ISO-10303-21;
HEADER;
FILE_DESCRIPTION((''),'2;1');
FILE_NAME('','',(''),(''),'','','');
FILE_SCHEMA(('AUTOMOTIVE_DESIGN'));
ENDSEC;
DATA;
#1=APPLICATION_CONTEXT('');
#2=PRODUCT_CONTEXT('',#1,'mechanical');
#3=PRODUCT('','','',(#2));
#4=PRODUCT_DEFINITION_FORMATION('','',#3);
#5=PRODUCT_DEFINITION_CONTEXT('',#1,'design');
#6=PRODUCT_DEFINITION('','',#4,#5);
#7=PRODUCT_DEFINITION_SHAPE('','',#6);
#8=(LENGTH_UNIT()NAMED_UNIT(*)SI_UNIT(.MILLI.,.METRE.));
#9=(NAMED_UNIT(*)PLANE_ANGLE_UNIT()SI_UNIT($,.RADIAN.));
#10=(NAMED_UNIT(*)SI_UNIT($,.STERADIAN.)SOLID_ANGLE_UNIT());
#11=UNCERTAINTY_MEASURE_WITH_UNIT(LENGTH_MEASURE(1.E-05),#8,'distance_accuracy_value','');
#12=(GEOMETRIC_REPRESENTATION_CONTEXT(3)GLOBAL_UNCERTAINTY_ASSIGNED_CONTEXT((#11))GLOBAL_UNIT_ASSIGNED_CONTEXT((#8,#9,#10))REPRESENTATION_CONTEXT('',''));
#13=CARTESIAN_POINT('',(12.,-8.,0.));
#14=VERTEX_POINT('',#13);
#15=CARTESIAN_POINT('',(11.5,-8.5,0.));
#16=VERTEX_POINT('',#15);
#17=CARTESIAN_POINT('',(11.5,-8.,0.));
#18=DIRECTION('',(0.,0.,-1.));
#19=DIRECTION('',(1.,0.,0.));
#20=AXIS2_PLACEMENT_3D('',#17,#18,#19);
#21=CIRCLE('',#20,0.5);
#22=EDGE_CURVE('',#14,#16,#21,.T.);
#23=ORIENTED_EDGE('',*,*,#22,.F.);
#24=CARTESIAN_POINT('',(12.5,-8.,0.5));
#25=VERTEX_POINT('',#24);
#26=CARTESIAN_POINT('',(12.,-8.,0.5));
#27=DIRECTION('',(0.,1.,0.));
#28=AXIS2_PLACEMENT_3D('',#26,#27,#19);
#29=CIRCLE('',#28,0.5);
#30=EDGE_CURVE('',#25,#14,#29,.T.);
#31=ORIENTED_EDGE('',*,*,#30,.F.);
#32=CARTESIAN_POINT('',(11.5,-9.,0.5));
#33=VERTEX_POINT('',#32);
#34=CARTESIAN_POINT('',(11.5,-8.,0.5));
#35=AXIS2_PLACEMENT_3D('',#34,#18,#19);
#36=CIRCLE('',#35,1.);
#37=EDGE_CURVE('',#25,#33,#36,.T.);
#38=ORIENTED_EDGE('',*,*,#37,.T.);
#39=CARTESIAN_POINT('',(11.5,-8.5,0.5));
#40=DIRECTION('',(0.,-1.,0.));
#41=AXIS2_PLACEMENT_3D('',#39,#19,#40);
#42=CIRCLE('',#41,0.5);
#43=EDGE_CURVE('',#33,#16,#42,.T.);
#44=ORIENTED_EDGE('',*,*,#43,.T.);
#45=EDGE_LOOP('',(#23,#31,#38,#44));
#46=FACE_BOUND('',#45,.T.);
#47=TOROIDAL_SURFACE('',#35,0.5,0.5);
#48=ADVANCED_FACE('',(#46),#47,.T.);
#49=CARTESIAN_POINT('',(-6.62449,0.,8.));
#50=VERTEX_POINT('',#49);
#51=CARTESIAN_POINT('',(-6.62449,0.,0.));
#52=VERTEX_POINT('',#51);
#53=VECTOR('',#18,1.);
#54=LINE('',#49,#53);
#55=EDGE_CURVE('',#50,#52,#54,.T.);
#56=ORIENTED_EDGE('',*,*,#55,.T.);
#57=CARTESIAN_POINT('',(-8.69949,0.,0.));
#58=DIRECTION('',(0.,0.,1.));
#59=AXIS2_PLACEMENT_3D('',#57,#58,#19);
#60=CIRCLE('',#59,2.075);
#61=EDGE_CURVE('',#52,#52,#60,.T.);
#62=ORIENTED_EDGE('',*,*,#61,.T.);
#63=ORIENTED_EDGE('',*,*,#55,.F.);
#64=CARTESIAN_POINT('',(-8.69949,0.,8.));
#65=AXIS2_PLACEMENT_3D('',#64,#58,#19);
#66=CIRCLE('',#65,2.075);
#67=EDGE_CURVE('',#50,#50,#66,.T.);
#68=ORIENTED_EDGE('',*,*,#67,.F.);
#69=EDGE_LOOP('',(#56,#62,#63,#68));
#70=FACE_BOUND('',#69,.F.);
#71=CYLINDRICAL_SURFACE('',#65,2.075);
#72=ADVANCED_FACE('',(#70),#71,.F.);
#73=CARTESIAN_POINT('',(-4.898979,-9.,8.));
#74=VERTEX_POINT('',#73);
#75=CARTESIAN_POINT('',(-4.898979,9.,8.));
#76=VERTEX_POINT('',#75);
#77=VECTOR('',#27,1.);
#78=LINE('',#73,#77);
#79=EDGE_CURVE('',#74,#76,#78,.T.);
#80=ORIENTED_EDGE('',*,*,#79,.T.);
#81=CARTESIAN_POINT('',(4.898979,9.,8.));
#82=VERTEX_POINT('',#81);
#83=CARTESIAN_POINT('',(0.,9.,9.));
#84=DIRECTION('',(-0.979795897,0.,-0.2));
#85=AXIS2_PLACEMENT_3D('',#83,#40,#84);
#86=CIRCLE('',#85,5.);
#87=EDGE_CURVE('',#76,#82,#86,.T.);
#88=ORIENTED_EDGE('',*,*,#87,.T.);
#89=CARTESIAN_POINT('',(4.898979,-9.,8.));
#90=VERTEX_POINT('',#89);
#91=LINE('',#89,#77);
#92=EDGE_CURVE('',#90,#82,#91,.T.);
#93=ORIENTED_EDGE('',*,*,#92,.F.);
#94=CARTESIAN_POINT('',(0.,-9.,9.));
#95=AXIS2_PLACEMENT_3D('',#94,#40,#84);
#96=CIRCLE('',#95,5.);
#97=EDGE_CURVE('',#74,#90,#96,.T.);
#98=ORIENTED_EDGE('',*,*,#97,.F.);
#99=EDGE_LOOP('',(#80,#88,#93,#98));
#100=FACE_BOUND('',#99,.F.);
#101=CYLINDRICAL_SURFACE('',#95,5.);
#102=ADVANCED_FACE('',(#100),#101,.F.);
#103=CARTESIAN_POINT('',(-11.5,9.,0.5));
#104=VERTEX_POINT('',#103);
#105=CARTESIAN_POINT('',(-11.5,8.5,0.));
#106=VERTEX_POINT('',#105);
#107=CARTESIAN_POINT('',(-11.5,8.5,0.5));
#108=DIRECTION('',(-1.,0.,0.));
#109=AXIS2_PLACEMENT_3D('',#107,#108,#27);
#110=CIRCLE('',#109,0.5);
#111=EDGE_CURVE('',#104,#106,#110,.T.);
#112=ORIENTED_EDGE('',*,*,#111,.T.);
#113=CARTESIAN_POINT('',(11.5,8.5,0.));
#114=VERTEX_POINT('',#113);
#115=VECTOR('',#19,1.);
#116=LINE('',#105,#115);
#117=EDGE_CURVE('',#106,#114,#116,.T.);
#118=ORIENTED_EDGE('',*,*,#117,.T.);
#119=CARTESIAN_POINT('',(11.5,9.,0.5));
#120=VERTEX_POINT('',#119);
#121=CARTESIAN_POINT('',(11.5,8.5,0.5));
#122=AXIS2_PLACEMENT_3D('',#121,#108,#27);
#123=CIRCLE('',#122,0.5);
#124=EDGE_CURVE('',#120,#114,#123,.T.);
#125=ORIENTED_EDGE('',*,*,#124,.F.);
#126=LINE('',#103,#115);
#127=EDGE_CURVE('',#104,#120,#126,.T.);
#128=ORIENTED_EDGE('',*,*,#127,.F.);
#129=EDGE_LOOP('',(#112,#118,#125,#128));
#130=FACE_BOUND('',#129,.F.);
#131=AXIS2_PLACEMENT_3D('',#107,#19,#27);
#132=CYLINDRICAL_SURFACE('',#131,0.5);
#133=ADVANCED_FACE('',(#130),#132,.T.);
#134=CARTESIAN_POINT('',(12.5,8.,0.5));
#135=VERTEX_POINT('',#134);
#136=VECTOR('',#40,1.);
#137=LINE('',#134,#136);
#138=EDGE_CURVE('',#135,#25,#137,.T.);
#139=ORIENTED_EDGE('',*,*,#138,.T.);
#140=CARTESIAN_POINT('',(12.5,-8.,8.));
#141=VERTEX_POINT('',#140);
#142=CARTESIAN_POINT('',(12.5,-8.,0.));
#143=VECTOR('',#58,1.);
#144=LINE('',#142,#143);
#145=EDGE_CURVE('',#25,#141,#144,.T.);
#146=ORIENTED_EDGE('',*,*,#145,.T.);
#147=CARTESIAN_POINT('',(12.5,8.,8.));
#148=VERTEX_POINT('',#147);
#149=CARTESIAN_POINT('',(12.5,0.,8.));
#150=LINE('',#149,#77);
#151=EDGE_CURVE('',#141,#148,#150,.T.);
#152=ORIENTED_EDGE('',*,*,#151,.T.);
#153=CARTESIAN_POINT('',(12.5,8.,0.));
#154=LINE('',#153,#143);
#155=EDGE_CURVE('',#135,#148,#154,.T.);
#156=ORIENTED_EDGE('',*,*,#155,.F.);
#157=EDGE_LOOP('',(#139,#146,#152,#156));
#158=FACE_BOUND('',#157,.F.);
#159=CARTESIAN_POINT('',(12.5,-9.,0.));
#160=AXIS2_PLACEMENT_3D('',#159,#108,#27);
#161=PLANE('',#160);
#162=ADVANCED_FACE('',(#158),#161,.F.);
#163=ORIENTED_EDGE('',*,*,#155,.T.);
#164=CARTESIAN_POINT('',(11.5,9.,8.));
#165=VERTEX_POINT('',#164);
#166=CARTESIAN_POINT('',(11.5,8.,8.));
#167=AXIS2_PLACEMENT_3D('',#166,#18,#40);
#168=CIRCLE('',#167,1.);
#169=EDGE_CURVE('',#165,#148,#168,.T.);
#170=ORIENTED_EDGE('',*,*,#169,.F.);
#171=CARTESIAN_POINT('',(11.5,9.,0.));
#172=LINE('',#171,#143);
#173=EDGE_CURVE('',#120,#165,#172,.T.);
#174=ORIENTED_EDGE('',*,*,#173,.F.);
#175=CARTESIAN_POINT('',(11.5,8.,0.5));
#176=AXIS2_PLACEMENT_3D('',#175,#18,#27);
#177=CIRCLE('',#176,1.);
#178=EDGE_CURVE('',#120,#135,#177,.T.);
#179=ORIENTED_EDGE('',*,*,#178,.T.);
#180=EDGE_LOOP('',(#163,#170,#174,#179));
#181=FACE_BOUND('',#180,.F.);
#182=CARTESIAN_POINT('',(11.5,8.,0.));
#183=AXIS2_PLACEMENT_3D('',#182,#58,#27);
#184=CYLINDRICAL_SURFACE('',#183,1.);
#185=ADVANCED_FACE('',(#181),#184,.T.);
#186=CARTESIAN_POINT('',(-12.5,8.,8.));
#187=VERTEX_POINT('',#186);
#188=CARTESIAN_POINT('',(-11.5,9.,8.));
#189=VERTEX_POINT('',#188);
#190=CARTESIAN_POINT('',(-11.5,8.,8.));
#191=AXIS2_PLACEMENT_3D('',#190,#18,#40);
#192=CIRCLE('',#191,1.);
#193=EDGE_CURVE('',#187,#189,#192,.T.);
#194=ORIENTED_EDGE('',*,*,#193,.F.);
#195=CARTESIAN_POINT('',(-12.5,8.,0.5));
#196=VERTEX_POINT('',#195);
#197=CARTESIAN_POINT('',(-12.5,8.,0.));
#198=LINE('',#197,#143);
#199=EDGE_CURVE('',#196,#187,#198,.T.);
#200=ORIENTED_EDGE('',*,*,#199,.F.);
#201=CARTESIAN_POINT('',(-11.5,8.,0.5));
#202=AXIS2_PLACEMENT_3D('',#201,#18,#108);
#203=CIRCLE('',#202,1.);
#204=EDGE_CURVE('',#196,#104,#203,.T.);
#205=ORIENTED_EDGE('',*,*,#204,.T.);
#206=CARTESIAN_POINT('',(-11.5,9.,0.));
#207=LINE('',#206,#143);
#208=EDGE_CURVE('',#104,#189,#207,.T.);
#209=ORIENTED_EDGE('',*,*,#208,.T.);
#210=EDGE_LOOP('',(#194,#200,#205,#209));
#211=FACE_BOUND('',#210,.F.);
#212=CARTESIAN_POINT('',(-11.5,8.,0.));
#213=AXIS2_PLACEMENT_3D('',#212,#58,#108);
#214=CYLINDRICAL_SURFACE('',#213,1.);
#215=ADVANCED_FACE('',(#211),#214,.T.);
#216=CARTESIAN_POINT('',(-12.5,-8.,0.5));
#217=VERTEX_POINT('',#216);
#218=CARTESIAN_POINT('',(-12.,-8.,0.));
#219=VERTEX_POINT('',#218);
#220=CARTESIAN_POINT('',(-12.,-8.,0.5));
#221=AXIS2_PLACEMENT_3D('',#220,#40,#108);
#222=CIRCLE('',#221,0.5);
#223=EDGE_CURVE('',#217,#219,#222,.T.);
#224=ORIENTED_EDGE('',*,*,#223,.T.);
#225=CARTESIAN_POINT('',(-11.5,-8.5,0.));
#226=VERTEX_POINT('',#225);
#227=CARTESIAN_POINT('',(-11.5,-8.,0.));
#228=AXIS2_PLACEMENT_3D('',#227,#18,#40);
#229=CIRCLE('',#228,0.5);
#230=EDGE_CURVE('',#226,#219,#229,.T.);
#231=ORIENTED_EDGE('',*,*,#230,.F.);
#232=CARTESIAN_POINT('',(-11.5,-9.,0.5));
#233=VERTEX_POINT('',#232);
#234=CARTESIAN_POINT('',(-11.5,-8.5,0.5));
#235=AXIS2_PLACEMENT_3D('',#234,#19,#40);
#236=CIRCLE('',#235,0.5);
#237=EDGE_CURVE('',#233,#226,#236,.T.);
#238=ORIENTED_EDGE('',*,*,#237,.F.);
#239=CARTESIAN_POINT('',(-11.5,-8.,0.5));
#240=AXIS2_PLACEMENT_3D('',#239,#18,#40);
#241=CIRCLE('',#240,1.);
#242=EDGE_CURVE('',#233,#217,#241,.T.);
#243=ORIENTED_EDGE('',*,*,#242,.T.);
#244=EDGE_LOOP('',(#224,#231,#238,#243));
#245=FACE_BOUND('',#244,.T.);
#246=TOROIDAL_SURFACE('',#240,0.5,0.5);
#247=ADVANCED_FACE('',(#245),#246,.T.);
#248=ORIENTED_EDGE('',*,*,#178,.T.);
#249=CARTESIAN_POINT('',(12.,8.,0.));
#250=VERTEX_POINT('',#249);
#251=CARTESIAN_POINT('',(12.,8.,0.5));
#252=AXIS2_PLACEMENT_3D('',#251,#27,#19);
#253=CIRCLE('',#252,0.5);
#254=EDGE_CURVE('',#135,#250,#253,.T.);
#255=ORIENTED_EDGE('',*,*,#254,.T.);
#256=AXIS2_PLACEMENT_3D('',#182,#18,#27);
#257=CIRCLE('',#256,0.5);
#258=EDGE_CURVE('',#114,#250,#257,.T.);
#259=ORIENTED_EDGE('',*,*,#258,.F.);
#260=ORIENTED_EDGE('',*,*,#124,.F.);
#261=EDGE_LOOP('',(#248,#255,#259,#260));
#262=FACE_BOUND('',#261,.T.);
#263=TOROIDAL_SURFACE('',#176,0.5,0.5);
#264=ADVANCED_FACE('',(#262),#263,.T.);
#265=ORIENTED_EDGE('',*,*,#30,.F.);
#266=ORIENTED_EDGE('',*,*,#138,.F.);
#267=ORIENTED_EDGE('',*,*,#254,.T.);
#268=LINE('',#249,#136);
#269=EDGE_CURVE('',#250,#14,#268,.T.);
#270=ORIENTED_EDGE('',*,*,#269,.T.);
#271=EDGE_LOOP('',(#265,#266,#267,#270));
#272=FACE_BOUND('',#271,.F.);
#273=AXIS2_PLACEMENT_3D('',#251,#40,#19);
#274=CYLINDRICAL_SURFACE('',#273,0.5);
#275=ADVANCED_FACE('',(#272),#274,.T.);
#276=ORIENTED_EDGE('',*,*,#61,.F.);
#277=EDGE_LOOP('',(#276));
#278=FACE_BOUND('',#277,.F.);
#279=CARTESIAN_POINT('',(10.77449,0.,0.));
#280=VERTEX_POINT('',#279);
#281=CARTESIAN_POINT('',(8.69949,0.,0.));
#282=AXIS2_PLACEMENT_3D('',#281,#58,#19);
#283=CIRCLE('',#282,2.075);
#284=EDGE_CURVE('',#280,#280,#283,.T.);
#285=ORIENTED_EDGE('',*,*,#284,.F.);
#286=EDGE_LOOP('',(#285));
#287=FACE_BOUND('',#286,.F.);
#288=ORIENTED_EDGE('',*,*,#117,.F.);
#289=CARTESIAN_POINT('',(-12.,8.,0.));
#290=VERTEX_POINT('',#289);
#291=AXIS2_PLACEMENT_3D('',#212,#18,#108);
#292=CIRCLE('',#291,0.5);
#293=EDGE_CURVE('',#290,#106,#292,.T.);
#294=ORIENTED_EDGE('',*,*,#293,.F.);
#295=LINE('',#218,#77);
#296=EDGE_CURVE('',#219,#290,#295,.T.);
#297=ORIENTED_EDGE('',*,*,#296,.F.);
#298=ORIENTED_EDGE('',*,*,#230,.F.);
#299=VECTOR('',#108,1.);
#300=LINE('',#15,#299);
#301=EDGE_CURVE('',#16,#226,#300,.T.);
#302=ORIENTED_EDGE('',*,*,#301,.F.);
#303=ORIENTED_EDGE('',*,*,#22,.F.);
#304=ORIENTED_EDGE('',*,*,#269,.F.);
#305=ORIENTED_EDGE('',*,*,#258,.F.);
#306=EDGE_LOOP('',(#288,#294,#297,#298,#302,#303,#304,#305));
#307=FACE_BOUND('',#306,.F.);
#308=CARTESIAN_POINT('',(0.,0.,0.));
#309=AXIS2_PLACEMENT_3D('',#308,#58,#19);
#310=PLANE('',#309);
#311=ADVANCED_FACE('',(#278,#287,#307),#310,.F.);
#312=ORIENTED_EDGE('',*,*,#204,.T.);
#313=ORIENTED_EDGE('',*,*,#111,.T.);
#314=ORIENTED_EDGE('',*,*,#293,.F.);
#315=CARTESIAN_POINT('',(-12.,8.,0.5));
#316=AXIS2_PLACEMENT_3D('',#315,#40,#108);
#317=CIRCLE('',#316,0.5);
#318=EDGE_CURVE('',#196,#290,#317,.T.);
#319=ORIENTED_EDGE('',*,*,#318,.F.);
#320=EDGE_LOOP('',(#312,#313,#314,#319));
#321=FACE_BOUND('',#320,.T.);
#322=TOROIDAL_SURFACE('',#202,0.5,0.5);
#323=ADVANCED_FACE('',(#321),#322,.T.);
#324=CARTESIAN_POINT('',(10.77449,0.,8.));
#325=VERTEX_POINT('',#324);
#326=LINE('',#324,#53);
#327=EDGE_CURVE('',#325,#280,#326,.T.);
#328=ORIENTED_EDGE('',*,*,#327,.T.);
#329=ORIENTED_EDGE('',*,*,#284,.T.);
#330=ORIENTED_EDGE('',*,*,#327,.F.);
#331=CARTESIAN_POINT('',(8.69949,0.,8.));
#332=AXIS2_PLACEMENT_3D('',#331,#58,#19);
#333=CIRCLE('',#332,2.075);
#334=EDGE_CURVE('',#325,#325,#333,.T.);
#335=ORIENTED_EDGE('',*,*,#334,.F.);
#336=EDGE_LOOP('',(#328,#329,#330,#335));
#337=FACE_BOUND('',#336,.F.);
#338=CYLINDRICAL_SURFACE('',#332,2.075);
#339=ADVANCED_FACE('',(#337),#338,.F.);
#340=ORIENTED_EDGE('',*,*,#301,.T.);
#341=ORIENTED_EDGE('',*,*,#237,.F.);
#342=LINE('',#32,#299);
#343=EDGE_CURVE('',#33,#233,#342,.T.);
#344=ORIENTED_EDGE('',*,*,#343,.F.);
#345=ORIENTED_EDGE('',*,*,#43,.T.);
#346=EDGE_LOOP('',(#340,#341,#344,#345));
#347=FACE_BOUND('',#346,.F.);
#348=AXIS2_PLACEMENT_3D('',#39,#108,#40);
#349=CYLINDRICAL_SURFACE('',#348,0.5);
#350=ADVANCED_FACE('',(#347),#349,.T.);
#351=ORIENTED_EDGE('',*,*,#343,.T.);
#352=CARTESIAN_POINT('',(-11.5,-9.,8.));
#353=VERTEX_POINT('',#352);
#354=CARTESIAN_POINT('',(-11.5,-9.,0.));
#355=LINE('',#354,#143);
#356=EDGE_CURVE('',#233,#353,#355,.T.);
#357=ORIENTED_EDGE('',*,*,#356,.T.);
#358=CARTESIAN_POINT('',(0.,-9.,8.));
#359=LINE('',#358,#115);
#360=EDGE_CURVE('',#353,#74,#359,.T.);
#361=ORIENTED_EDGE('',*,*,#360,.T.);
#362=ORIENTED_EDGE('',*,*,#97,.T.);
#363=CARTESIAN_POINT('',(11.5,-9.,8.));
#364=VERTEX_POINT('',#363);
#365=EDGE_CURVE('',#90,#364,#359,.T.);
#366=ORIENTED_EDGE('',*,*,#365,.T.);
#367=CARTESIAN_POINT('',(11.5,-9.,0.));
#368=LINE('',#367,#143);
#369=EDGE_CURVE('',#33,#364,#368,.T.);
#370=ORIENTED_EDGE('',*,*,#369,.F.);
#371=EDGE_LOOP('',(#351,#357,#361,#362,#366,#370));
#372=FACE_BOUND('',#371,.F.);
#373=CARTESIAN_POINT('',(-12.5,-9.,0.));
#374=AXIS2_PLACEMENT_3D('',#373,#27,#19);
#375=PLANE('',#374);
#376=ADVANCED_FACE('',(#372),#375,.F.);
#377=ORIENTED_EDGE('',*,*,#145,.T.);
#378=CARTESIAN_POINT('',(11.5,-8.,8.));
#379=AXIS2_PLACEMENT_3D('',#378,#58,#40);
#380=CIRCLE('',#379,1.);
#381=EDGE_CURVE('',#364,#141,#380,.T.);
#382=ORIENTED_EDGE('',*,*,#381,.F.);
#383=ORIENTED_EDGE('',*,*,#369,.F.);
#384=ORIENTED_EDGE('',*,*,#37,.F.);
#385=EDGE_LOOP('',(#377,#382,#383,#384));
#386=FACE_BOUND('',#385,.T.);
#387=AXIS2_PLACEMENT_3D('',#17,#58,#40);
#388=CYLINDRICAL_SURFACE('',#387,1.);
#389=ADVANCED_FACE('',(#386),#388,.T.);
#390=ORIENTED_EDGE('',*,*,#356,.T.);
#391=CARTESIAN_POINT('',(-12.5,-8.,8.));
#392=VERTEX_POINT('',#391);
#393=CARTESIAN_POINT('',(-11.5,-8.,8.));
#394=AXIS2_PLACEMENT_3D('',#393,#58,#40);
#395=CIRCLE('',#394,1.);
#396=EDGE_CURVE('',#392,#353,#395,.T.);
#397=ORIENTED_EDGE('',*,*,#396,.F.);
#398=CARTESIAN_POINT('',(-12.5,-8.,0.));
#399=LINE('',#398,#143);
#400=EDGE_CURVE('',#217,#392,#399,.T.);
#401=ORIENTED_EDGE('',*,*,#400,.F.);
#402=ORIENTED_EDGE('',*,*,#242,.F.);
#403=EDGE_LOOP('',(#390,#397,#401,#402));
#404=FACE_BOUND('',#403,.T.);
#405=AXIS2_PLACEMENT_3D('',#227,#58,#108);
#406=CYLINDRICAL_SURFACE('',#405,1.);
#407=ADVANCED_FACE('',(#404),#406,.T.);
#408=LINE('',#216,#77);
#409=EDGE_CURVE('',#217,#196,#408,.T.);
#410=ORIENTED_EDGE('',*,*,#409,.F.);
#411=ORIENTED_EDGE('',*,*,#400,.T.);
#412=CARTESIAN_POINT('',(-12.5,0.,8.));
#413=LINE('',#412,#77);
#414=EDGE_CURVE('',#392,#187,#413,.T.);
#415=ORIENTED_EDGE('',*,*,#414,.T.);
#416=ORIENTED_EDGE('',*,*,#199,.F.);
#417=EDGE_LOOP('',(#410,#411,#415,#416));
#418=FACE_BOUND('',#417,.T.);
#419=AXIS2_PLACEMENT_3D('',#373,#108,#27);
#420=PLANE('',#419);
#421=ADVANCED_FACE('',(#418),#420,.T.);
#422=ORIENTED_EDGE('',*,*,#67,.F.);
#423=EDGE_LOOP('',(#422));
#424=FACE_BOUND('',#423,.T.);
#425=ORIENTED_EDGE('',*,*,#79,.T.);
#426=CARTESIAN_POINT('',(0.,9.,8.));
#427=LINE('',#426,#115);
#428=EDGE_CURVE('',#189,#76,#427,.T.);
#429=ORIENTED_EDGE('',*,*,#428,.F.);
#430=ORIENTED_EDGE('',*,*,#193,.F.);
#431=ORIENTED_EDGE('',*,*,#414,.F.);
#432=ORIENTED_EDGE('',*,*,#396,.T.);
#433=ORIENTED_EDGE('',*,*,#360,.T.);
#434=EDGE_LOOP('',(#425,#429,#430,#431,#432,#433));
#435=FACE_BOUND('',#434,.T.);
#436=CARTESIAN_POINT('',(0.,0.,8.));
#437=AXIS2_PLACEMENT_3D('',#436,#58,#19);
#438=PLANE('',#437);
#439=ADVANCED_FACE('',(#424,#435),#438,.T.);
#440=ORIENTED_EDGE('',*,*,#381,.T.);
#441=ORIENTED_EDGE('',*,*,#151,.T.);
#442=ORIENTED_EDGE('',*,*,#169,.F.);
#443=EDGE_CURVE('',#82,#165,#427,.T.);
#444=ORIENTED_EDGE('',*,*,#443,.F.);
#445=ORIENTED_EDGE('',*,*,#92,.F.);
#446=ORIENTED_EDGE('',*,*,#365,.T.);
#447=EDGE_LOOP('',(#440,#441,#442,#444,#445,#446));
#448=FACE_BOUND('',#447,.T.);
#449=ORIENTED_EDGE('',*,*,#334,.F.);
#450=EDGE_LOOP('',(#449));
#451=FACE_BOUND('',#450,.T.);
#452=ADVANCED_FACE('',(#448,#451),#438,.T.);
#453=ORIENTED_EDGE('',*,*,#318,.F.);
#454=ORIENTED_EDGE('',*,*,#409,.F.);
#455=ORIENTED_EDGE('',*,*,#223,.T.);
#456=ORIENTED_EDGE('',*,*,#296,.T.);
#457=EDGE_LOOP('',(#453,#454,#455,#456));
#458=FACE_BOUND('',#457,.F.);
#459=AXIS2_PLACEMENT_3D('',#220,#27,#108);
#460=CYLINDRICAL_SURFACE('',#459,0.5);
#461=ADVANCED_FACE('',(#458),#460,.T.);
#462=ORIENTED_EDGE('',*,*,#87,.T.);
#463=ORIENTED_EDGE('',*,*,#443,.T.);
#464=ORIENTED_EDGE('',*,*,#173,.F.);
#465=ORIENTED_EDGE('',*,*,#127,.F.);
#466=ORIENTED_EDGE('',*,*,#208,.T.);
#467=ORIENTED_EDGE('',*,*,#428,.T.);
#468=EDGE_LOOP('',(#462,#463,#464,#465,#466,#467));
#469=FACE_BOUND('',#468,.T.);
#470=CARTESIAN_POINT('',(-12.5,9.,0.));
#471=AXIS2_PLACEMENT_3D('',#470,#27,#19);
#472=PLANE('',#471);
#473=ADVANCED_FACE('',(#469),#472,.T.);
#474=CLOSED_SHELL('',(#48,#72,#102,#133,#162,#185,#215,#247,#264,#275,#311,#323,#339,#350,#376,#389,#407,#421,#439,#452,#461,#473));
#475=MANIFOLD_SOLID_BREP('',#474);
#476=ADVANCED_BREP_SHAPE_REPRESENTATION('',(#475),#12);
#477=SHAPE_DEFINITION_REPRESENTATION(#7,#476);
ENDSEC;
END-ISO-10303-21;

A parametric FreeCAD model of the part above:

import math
import FreeCAD as App
import Part
import Sketcher


def edges_at(feature, points):
    """Names of the edges that pass closest to the given points."""
    edges = feature.Shape.Edges
    near = lambda p: min(range(len(edges)), key=lambda i: edges[i].distToShape(Part.Vertex(*p))[0])
    return sorted({f"Edge{near(p) + 1}" for p in points})


def add_polygon(sketch, points):
    """Adds a closed chain of lines whose ends are joined by coincident constraints."""
    first, n = sketch.GeometryCount, len(points)
    for a, b in zip(points, points[1:] + points[:1]):
        sketch.addGeometry(Part.LineSegment(App.Vector(*a, 0), App.Vector(*b, 0)), False)
    for i in range(n):
        sketch.addConstraint(Sketcher.Constraint("Coincident", first + i, 2, first + (i + 1) % n, 1))

doc = App.newDocument("Part")
body = doc.addObject("PartDesign::Body", "Body")

sketch1 = body.newObject("Sketcher::SketchObject", "Sketch")
sketch1.AttachmentSupport = (doc.getObject("XY_Plane"), [""])
sketch1.MapMode = "FlatFace"
add_polygon(sketch1, [(-12, 9), (-12, -9), (12, -9), (12, 9)])
sketch1.addConstraint(Sketcher.Constraint("Vertical", 0))
sketch1.addConstraint(Sketcher.Constraint("Horizontal", 1))
sketch1.addConstraint(Sketcher.Constraint("Vertical", 2))
sketch1.addConstraint(Sketcher.Constraint("Horizontal", 3))
sketch1.addConstraint(Sketcher.Constraint("Symmetric", 0, 2, 2, 2, -1, 1))
sketch1.addConstraint(Sketcher.Constraint("DistanceX", 1, 1, 1, 2, 25.0))
sketch1.addConstraint(Sketcher.Constraint("DistanceY", 0, 2, 0, 1, 18.0))
pad1 = body.newObject("PartDesign::Pad", "Pad")
pad1.Profile = sketch1
pad1.Length = 8

sketch2 = body.newObject("Sketcher::SketchObject", "Sketch001")
sketch2.AttachmentSupport = (doc.getObject("XZ_Plane"), [""])
sketch2.MapMode = "FlatFace"
sketch2.AttachmentOffset = App.Placement(App.Vector(0, 0, 9), App.Rotation())
sketch2.addGeometry(Part.LineSegment(App.Vector(5, 8, 0), App.Vector(-5, 8, 0)), False)
sketch2.addGeometry(Part.ArcOfCircle(Part.Circle(App.Vector(0, 9, 0), App.Vector(0, 0, 1), 5), math.radians(-168), math.radians(-12)), False)
sketch2.addConstraint(Sketcher.Constraint("Coincident", 0, 1, 1, 2))
sketch2.addConstraint(Sketcher.Constraint("Coincident", 1, 1, 0, 2))
sketch2.addConstraint(Sketcher.Constraint("Horizontal", 0))
sketch2.addConstraint(Sketcher.Constraint("PointOnObject", 1, 3, -2))
sketch2.addConstraint(Sketcher.Constraint("Radius", 1, 5.0))
sketch2.addConstraint(Sketcher.Constraint("DistanceY", -1, 1, 1, 3, 9.0))
sketch2.addConstraint(Sketcher.Constraint("DistanceY", -1, 1, 0, 1, 8.0))
pocket1 = body.newObject("PartDesign::Pocket", "Pocket")
pocket1.Profile = sketch2
pocket1.Length = 25

sketch3 = body.newObject("Sketcher::SketchObject", "Sketch002")
sketch3.AttachmentSupport = (doc.getObject("XY_Plane"), [""])
sketch3.MapMode = "FlatFace"
sketch3.AttachmentOffset = App.Placement(App.Vector(0, 0, 8), App.Rotation())
sketch3.addGeometry(Part.Circle(App.Vector(-8.7, 0, 0), App.Vector(0, 0, 1), 2.1), False)
sketch3.addGeometry(Part.Circle(App.Vector(8.7, 0, 0), App.Vector(0, 0, 1), 2.1), False)
sketch3.addConstraint(Sketcher.Constraint("Equal", 0, 1))
sketch3.addConstraint(Sketcher.Constraint("Symmetric", 0, 3, 1, 3, -1, 1))
sketch3.addConstraint(Sketcher.Constraint("PointOnObject", 0, 3, -1))
sketch3.addConstraint(Sketcher.Constraint("Diameter", 0, 4.15))
sketch3.addConstraint(Sketcher.Constraint("DistanceX", 0, 3, -1, 1, 8.69949))
pocket2 = body.newObject("PartDesign::Pocket", "Pocket001")
pocket2.Profile = sketch3
pocket2.Length = 25
doc.recompute()

fillet = body.newObject("PartDesign::Fillet", "Fillet")
fillet.Base = (pocket2, edges_at(pocket2, [
    (-12.5, -9, 4),
    (12.5, -9, 4),
    (12.5, 9, 4),
    (-12.5, 9, 4),
]))
fillet.Radius = 1
doc.recompute()

fillet2 = body.newObject("PartDesign::Fillet", "Fillet001")
fillet2.Base = (fillet, edges_at(fillet, [(-12.5, 0, 0)]))
fillet2.Radius = 0.5

doc.recompute()
